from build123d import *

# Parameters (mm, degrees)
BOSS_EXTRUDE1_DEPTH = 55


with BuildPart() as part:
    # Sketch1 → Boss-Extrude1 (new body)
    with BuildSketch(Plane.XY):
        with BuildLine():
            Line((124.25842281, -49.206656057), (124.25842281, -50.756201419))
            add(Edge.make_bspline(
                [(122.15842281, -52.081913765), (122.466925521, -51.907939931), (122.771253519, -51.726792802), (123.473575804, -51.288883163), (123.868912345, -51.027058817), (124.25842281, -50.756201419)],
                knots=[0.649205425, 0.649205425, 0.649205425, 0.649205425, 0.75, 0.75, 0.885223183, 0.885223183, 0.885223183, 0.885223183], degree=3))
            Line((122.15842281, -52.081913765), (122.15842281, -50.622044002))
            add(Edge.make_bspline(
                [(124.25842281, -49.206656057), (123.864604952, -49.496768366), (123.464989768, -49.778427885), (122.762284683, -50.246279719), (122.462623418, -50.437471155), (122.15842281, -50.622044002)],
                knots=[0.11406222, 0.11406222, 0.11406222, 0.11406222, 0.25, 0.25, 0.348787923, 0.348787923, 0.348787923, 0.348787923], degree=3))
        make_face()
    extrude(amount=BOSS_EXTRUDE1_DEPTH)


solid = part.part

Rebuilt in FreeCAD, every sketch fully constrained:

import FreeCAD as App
import Part
import Sketcher

V = App.Vector

doc = App.newDocument("Part")
body = doc.addObject("PartDesign::Body", "Body")

# Sketch on XY plane
sketch1 = body.newObject("Sketcher::SketchObject", "Sketch")
sketch1.AttachmentSupport = (doc.getObject("XY_Plane"), [""])
sketch1.MapMode = "FlatFace"
sketch1.addGeometry([
    Part.LineSegment(V(124.258423, -50.756201, 0), V(124.258423, -49.206656, 0)),
    Part.BSplineCurve([V(124.258423, -49.206656, 0), V(123.864605, -49.496768, 0), V(123.46499, -49.778428, 0), V(122.762285, -50.24628, 0), V(122.462623, -50.437471, 0), V(122.158423, -50.622044, 0)], [4, 2, 4], [0.11406222, 0.25, 0.348787923], False, 3, [1, 1, 1, 1, 1, 1], False),
    Part.LineSegment(V(122.158423, -50.622044, 0), V(122.158423, -52.081914, 0)),
    Part.BSplineCurve([V(122.158423, -52.081914, 0), V(122.466926, -51.90794, 0), V(122.771254, -51.726793, 0), V(123.473576, -51.288883, 0), V(123.868912, -51.027059, 0), V(124.258423, -50.756201, 0)], [4, 2, 4], [0.649205425, 0.75, 0.885223183], False, 3, [1, 1, 1, 1, 1, 1], False),
], False)
sketch1.addConstraint([
    Sketcher.Constraint("Block", 1),
    Sketcher.Constraint("Block", 3),
    Sketcher.Constraint("Coincident", 0, 2, 1, 1),
    Sketcher.Constraint("Coincident", 1, 2, 2, 1),
    Sketcher.Constraint("Coincident", 2, 2, 3, 1),
    Sketcher.Constraint("Coincident", 3, 2, 0, 1),
])
pad1 = body.newObject("PartDesign::Pad", "Pad")
pad1.Profile = sketch1
pad1.Length = 55

doc.recompute()
